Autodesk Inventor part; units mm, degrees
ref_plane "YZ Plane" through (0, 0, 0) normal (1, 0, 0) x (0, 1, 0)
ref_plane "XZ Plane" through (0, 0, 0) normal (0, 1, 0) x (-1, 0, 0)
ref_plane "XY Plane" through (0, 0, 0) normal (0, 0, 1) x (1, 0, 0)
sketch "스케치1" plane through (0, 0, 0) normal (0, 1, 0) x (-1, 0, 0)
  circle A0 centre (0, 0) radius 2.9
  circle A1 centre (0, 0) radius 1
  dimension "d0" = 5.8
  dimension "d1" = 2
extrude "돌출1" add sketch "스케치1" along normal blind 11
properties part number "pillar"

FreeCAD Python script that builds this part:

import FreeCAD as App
import Part
import Sketcher
from FreeCAD import Vector

doc = App.newDocument("Part")
body = doc.addObject("PartDesign::Body", "Body")

# Sketch on XZ plane
sketch1 = body.newObject("Sketcher::SketchObject", "Sketch")
sketch1.AttachmentSupport = (doc.getObject("XZ_Plane"), [""])
sketch1.MapMode = "FlatFace"
sketch1.addGeometry(Part.Circle(Vector(0, 0, 0), Vector(0, 0, 1), 2.9), False)
sketch1.addGeometry(Part.Circle(Vector(0, 0, 0), Vector(0, 0, 1), 1), False)
sketch1.addConstraint(Sketcher.Constraint("Coincident", 0, 3, -1, 1))
sketch1.addConstraint(Sketcher.Constraint("Coincident", 1, 3, -1, 1))
sketch1.addConstraint(Sketcher.Constraint("Diameter", 1, 2.0))
sketch1.addConstraint(Sketcher.Constraint("Diameter", 0, 5.8))
pad1 = body.newObject("PartDesign::Pad", "Pad")
pad1.Profile = sketch1
pad1.Length = 11
pad1.Reversed = True

doc.recompute()
